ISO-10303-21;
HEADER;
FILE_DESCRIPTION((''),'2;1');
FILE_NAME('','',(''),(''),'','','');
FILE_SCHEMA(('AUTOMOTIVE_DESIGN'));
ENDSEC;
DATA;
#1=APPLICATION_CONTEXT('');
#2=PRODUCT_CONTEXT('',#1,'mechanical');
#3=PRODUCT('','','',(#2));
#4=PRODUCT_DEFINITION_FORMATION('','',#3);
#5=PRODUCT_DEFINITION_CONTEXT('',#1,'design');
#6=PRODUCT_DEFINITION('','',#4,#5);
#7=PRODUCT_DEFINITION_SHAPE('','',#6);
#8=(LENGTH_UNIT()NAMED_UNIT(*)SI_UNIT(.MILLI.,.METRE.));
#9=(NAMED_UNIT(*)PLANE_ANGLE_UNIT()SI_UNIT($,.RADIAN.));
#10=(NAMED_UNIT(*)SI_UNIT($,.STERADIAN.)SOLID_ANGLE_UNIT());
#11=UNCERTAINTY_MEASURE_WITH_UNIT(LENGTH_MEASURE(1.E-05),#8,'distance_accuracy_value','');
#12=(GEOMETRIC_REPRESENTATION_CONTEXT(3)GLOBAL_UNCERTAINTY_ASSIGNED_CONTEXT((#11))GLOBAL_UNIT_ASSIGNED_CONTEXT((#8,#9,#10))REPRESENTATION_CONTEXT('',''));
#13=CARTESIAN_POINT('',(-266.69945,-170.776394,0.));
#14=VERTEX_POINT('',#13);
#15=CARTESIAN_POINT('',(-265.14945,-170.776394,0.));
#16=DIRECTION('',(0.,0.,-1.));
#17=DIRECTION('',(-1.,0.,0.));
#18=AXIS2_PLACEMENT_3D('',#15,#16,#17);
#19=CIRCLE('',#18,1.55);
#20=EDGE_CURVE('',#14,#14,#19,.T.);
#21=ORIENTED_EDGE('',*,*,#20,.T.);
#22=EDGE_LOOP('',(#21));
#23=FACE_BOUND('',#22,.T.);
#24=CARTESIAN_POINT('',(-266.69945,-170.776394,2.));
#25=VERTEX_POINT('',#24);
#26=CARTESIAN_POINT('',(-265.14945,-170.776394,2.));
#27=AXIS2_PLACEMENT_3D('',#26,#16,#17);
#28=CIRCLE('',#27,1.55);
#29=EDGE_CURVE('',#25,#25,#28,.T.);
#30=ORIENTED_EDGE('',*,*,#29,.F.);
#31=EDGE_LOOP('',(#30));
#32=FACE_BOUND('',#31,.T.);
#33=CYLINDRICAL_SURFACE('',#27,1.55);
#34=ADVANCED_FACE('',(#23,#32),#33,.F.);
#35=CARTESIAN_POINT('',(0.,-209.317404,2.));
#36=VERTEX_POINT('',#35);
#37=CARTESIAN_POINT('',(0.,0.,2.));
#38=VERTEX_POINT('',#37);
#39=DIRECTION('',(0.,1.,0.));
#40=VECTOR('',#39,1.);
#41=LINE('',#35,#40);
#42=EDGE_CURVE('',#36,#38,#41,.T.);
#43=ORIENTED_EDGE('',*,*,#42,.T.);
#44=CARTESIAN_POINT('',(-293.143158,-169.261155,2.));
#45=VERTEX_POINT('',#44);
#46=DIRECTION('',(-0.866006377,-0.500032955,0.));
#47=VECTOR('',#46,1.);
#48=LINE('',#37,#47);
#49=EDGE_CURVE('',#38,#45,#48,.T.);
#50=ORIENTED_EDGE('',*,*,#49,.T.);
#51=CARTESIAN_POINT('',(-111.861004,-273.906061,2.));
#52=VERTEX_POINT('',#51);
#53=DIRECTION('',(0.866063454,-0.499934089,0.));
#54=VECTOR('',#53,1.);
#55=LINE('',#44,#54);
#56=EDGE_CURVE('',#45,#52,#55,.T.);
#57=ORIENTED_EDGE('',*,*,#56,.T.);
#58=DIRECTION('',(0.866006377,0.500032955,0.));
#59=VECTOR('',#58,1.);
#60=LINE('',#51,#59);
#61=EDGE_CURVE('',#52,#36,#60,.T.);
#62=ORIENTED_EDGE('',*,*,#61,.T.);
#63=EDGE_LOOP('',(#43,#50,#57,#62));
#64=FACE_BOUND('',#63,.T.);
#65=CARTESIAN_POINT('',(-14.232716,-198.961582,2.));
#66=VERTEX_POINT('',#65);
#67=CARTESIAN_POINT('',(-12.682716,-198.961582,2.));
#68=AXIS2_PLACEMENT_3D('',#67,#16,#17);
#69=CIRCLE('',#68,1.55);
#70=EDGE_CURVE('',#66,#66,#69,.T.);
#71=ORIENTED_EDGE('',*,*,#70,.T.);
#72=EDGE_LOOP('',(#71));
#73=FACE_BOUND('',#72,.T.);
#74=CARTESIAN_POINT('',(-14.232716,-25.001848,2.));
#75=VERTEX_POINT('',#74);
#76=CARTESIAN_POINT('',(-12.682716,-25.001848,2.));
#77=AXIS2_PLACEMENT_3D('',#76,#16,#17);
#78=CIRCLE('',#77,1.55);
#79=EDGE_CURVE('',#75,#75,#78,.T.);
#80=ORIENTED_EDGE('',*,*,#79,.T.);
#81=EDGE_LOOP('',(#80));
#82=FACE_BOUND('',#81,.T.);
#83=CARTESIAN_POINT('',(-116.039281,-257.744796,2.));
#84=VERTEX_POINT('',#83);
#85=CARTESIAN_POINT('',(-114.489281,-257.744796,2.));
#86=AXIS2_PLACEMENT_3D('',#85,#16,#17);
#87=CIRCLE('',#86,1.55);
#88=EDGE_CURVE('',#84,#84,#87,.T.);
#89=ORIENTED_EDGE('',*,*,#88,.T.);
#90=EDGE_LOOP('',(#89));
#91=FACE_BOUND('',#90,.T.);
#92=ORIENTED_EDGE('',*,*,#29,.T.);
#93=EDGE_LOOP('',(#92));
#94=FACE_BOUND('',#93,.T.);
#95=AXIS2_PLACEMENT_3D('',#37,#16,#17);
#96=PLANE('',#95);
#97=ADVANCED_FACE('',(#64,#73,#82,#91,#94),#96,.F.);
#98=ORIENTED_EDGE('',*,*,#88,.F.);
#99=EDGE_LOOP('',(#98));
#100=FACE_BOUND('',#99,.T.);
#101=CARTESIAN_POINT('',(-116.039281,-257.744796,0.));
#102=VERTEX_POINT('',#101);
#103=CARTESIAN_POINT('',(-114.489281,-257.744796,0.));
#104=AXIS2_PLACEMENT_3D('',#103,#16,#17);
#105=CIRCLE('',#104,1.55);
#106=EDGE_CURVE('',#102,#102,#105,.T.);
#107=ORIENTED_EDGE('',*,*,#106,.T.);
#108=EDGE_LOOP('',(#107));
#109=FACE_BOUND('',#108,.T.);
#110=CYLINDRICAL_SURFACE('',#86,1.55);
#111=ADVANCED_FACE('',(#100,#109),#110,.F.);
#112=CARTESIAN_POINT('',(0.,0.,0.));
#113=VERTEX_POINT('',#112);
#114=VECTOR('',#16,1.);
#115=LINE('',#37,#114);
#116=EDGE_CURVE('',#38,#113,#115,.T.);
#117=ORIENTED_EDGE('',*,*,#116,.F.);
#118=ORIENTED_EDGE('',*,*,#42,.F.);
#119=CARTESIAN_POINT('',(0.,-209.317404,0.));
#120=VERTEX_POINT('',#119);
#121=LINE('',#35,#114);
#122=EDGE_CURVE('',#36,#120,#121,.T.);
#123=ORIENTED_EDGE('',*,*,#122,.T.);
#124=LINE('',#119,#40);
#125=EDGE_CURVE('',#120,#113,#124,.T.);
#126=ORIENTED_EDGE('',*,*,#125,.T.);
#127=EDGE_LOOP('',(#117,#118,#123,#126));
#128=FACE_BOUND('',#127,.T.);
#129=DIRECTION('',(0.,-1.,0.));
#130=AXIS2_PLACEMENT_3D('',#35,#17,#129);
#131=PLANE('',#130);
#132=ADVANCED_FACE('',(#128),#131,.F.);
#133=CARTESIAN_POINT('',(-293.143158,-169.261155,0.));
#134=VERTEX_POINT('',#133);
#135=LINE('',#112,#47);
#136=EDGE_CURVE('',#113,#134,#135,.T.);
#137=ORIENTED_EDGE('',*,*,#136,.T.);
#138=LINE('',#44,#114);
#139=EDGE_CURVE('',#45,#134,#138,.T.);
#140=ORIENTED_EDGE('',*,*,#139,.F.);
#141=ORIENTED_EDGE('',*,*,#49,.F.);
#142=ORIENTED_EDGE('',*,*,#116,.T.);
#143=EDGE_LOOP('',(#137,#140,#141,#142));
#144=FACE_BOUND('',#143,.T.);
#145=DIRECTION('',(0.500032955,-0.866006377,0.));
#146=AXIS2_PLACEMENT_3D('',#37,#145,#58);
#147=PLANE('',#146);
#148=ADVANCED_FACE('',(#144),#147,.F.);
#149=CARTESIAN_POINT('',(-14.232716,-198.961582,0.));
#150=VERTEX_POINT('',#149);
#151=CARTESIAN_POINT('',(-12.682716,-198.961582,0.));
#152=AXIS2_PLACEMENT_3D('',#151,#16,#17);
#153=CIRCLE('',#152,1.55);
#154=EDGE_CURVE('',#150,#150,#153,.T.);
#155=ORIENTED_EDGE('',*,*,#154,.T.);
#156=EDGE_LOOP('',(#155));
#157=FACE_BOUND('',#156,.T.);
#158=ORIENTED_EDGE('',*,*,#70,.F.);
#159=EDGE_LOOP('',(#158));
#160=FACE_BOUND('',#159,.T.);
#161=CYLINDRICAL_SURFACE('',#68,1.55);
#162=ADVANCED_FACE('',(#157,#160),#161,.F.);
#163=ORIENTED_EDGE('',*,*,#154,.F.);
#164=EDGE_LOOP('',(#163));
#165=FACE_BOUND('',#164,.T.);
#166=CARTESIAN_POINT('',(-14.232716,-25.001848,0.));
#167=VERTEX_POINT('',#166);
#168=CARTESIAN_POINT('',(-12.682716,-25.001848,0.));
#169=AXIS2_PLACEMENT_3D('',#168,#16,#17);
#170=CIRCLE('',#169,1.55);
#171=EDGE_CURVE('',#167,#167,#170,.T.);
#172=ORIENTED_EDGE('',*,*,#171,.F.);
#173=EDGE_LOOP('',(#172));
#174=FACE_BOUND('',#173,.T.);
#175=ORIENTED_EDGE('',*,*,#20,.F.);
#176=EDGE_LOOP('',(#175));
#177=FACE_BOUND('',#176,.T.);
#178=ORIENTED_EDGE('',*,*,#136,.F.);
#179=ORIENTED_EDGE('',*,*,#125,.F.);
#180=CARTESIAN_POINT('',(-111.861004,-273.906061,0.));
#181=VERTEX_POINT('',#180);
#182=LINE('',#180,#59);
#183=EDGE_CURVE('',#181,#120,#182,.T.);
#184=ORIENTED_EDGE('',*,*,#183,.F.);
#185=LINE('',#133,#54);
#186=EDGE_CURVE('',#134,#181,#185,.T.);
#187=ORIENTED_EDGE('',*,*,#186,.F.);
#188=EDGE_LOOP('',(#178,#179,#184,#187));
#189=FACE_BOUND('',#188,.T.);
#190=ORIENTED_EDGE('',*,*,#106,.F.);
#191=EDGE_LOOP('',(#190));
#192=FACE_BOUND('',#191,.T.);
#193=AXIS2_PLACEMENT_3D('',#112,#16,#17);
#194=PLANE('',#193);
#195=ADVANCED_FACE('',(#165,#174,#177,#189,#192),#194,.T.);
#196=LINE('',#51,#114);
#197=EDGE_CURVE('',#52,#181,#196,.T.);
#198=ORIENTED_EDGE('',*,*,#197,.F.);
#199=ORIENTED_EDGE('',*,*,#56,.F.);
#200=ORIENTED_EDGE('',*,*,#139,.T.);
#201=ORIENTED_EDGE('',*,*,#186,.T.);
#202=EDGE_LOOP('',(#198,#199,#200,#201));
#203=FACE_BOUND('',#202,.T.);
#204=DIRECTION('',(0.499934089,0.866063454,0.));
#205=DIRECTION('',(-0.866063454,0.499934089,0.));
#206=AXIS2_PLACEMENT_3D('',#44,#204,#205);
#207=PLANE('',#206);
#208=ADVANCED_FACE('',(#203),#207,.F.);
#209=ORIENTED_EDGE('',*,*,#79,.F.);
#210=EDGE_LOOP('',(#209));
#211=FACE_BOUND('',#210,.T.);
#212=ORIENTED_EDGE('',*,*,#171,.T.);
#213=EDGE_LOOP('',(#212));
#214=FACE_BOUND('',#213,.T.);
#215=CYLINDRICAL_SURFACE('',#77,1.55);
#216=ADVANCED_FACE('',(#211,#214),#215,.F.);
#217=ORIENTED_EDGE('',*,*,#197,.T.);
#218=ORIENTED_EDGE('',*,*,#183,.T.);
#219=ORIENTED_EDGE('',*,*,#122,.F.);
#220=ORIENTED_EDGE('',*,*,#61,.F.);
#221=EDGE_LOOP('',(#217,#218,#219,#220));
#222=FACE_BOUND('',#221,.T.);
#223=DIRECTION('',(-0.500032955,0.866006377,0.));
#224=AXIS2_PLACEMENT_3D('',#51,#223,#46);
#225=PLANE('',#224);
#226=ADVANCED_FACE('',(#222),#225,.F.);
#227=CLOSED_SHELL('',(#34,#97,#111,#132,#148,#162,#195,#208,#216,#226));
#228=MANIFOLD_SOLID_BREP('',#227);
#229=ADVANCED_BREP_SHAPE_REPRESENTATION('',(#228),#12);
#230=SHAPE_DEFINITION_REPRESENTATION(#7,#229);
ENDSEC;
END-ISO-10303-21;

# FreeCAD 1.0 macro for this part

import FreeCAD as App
import Part
import Sketcher
from FreeCAD import Vector


def add_polygon(sketch, points):
    """Adds a closed chain of lines whose ends are joined by coincident constraints."""
    first, n = sketch.GeometryCount, len(points)
    for a, b in zip(points, points[1:] + points[:1]):
        sketch.addGeometry(Part.LineSegment(App.Vector(*a, 0), App.Vector(*b, 0)), False)
    for i in range(n):
        sketch.addConstraint(Sketcher.Constraint("Coincident", first + i, 2, first + (i + 1) % n, 1))

doc = App.newDocument("Part")
body = doc.addObject("PartDesign::Body", "Body")

# Sketch on XY plane
sketch1 = doc.addObject("Sketcher::SketchObject", "Sketch")
body.addObject(sketch1)
sketch1.AttachmentSupport = (doc.XY_Plane, [""])
sketch1.MapMode = "FlatFace"
add_polygon(sketch1, [(0, 0), (-293, -169), (-112, -274), (0, -209)])  # lines 0-3
sketch1.addConstraint(Sketcher.Constraint("Vertical", 3))
sketch1.addConstraint(Sketcher.Constraint("Coincident", 3, 2, -1, 1))
sketch1.addConstraint(Sketcher.Constraint("Parallel", 0, 2))
sketch1.addConstraint(Sketcher.Constraint("Distance", 0, 338.5))
sketch1.addConstraint(Sketcher.Constraint("Distance", 2, 129.1688))
sketch1.addConstraint(Sketcher.Constraint("DistanceY", 3, 1, 3, 2, 209.317404))
sketch1.addConstraint(Sketcher.Constraint("DistanceX", 0, 2, -1, 1, 293.143158))
pad1 = doc.addObject("PartDesign::Pad", "Pad")
body.addObject(pad1)
pad1.Profile = sketch1
pad1.Length = 2

# Sketch on XY plane
sketch2 = doc.addObject("Sketcher::SketchObject", "Sketch001")
body.addObject(sketch2)
sketch2.AttachmentSupport = (doc.XY_Plane, [""])
sketch2.MapMode = "FlatFace"
sketch2.addGeometry(Part.Circle(Vector(-12.7, -25, 0), Vector(0, 0, 1), 1.6), False)
sketch2.addGeometry(Part.Circle(Vector(-12.7, -199, 0), Vector(0, 0, 1), 1.6), False)
sketch2.addGeometry(Part.Circle(Vector(-114.5, -257.7, 0), Vector(0, 0, 1), 1.6), False)
sketch2.addGeometry(Part.Circle(Vector(-265.1, -170.8, 0), Vector(0, 0, 1), 1.6), False)
sketch2.addConstraint(Sketcher.Constraint("Equal", 0, 1))
sketch2.addConstraint(Sketcher.Constraint("Equal", 1, 2))
sketch2.addConstraint(Sketcher.Constraint("Equal", 2, 3))
sketch2.addConstraint(Sketcher.Constraint("Vertical", 0, 3, 1, 3))
sketch2.addConstraint(Sketcher.Constraint("Diameter", 0, 3.1))
sketch2.addConstraint(Sketcher.Constraint("DistanceY", 2, 3, 3, 3, 86.968401))
sketch2.addConstraint(Sketcher.Constraint("DistanceX", 2, 3, -1, 1, 114.489281))
sketch2.addConstraint(Sketcher.Constraint("DistanceX", 3, 3, -1, 1, 265.14945))
sketch2.addConstraint(Sketcher.Constraint("DistanceY", 1, 3, 3, 3, 28.185188))
sketch2.addConstraint(Sketcher.Constraint("DistanceX", 0, 3, -1, 1, 12.682716))
sketch2.addConstraint(Sketcher.Constraint("DistanceY", 0, 3, -1, 1, 25.001848))
sketch2.addConstraint(Sketcher.Constraint("DistanceY", 1, 3, -1, 1, 198.961582))
pocket1 = doc.addObject("PartDesign::Pocket", "Pocket")
body.addObject(pocket1)
pocket1.Profile = sketch2
pocket1.Length = 2
pocket1.Reversed = True

doc.recompute()
